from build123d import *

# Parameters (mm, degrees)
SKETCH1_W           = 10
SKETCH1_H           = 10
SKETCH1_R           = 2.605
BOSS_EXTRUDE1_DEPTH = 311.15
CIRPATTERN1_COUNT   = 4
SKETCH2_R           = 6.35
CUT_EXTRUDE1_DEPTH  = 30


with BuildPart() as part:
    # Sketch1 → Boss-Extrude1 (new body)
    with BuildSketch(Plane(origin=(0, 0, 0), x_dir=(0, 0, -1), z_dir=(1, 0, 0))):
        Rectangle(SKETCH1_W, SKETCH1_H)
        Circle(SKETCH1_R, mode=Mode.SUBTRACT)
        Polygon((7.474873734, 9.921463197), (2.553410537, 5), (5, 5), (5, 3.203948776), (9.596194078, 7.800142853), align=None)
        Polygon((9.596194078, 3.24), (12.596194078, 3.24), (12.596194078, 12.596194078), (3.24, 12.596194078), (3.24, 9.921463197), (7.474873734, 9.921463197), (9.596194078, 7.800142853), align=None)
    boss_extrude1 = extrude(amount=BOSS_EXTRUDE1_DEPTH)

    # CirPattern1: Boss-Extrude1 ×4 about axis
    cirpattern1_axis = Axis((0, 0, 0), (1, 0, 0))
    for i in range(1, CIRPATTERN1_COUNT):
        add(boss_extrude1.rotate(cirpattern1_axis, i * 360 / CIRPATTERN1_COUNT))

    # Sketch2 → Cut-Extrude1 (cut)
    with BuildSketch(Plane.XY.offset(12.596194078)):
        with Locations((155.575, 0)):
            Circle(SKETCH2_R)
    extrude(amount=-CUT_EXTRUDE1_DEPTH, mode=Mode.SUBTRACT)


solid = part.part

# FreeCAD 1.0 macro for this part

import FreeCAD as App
import Part
import Sketcher
Q = App.Units.Quantity


def add_polygon(sketch, points):
    """Adds a closed chain of lines whose ends are joined by coincident constraints."""
    first, n = sketch.GeometryCount, len(points)
    for a, b in zip(points, points[1:] + points[:1]):
        sketch.addGeometry(Part.LineSegment(App.Vector(*a, 0), App.Vector(*b, 0)), False)
    for i in range(n):
        sketch.addConstraint(Sketcher.Constraint("Coincident", first + i, 2, first + (i + 1) % n, 1))

doc = App.newDocument("Part")
body = doc.addObject("PartDesign::Body", "Body")

# Sketch on YZ plane
sketch1 = body.newObject("Sketcher::SketchObject", "Sketch")
sketch1.AttachmentSupport = (doc.getObject("YZ_Plane"), [""])
sketch1.MapMode = "FlatFace"
add_polygon(sketch1, [(5, 5), (-5, 5), (-5, -5), (3.2, -5), (7.8, -9.6), (3.2, -9.6), (3.2, -12.6), (12.6, -12.6), (12.6, -3.2), (9.9, -3.2), (9.9, -7.5), (5, -2.6)])  # lines 0-11
sketch1.addGeometry(Part.Circle(App.Vector(0, 0, 0), App.Vector(0, 0, 1), 2.6), False)  # 12
sketch1.addConstraint(Sketcher.Constraint("Horizontal", 0))
sketch1.addConstraint(Sketcher.Constraint("Vertical", 1))
sketch1.addConstraint(Sketcher.Constraint("Horizontal", 2))
sketch1.addConstraint(Sketcher.Constraint("Horizontal", 4))
sketch1.addConstraint(Sketcher.Constraint("Vertical", 5))
sketch1.addConstraint(Sketcher.Constraint("Horizontal", 6))
sketch1.addConstraint(Sketcher.Constraint("Vertical", 7))
sketch1.addConstraint(Sketcher.Constraint("Horizontal", 8))
sketch1.addConstraint(Sketcher.Constraint("Vertical", 9))
sketch1.addConstraint(Sketcher.Constraint("Vertical", 11))
sketch1.addConstraint(Sketcher.Constraint("Coincident", 12, 3, -1, 1))
sketch1.addConstraint(Sketcher.Constraint("Symmetric", 1, 2, 11, 2, -1, 1))
sketch1.addConstraint(Sketcher.Constraint("Parallel", 3, 10))
sketch1.addConstraint(Sketcher.Constraint("Equal", 0, 1))
sketch1.addConstraint(Sketcher.Constraint("Equal", 6, 7))
sketch1.addConstraint(Sketcher.Constraint("Diameter", 12, Q("5.21 mm")))
sketch1.addConstraint(Sketcher.Constraint("DistanceX", 0, 2, 0, 1, Q("10 mm")))
sketch1.addConstraint(Sketcher.Constraint("DistanceY", 5, 2, 5, 1, Q("3 mm")))
sketch1.addConstraint(Sketcher.Constraint("Angle", 3, Q("-45 deg")))
sketch1.addConstraint(Sketcher.Constraint("Distance", 3, Q("6.5 mm")))
sketch1.addConstraint(Sketcher.Constraint("Distance", 10, Q("6.96 mm")))
sketch1.addConstraint(Sketcher.Constraint("DistanceX", -1, 1, 4, 2, Q("3.24 mm")))
sketch1.addConstraint(Sketcher.Constraint("DistanceY", 7, 2, -1, 1, Q("3.24 mm")))
sketch1.addConstraint(Sketcher.Constraint("DistanceX", 2, 1, 2, 2, Q("8.203949 mm")))
sketch1.addConstraint(Sketcher.Constraint("DistanceY", 11, 1, 11, 2, Q("7.553411 mm")))
pad1 = body.newObject("PartDesign::Pad", "Pad")
pad1.Profile = sketch1
pad1.Length = 311.15
doc.recompute()

polarpattern = body.newObject("PartDesign::PolarPattern", "PolarPattern")
polarpattern.Originals = [pad1]
polarpattern.Axis = (doc.getObject("X_Axis"), [""])
polarpattern.Angle = 360
polarpattern.Occurrences = 4
body.Tip = polarpattern

# Sketch on XY plane
sketch2 = body.newObject("Sketcher::SketchObject", "Sketch001")
sketch2.AttachmentSupport = (doc.getObject("XY_Plane"), [""])
sketch2.MapMode = "FlatFace"
sketch2.AttachmentOffset = App.Placement(App.Vector(0, 0, 12.596194), App.Rotation())
sketch2.addGeometry(Part.Circle(App.Vector(156, 0, 0), App.Vector(0, 0, 1), 6), False)
sketch2.addConstraint(Sketcher.Constraint("PointOnObject", 0, 3, -1))
sketch2.addConstraint(Sketcher.Constraint("Diameter", 0, Q("12.7 mm")))
sketch2.addConstraint(Sketcher.Constraint("DistanceX", -1, 1, 0, 3, Q("155.575 mm")))
pocket1 = body.newObject("PartDesign::Pocket", "Pocket")
pocket1.Profile = sketch2
pocket1.Length = 30

doc.recompute()
